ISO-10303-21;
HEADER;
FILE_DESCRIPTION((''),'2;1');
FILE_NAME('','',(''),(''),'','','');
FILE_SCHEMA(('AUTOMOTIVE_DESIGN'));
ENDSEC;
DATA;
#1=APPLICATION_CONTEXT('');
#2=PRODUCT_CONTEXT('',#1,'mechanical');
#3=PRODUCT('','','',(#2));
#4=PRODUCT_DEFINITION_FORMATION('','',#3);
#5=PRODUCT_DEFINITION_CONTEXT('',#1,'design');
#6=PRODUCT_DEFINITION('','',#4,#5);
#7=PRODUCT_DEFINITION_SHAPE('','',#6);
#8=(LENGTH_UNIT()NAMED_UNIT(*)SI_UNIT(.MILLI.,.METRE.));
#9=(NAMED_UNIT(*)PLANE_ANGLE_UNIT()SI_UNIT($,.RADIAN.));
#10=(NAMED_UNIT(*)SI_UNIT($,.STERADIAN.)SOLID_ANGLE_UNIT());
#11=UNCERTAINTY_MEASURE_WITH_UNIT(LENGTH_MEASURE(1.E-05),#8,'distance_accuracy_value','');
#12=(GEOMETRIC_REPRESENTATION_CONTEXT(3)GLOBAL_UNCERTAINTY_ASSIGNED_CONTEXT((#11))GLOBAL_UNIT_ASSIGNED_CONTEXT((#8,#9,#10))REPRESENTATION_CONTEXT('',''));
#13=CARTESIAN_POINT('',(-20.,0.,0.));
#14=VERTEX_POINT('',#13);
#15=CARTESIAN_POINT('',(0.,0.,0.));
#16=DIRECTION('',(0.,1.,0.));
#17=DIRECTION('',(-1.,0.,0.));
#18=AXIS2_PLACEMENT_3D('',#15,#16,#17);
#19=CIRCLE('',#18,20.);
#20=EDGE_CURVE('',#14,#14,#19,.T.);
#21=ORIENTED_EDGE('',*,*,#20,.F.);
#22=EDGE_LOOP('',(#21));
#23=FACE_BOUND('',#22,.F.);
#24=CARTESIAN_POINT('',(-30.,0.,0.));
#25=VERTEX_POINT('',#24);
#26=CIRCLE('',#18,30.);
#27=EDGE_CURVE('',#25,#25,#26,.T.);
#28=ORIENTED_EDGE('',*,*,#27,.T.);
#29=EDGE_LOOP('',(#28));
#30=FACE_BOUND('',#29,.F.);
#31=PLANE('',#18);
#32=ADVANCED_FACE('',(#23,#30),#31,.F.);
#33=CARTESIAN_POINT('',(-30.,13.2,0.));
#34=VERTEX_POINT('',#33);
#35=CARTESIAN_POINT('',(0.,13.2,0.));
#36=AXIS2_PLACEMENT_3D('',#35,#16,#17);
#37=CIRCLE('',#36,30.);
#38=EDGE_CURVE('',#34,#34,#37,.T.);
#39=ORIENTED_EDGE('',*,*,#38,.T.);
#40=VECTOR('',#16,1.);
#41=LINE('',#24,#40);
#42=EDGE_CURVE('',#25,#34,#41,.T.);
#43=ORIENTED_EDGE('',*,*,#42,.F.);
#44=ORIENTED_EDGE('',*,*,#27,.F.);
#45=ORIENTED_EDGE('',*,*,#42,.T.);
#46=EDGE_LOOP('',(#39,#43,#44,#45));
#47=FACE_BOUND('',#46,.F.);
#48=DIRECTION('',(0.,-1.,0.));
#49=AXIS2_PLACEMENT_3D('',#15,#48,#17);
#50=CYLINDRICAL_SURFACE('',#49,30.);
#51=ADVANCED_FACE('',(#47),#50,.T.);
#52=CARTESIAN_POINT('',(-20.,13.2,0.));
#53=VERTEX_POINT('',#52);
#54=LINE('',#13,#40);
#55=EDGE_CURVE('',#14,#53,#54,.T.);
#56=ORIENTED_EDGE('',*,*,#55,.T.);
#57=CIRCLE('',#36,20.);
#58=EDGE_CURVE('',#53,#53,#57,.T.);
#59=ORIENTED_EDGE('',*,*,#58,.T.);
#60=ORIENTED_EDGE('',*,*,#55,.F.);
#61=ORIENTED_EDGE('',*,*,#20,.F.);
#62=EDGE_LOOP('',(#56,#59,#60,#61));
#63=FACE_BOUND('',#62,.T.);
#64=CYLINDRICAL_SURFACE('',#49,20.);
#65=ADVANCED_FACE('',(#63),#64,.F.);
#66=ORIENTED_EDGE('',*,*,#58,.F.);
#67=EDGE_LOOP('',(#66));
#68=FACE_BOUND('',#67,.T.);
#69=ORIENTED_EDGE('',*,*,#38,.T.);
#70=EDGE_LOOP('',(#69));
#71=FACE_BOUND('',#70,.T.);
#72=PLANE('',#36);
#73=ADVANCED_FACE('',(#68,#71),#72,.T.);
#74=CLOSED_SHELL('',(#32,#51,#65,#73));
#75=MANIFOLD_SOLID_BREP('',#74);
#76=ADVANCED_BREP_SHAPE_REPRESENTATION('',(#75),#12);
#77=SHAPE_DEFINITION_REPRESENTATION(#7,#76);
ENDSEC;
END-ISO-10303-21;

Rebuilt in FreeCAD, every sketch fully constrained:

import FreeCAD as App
import Part
import Sketcher
from FreeCAD import Vector

doc = App.newDocument("Part")
body = doc.addObject("PartDesign::Body", "Body")

# Sketch on XZ plane
sketch1 = body.newObject("Sketcher::SketchObject", "Sketch")
sketch1.AttachmentSupport = (doc.getObject("XZ_Plane"), [""])
sketch1.MapMode = "FlatFace"
sketch1.addGeometry([
    Part.Circle(Vector(0, 0, 0), Vector(0, 0, 1), 30),
    Part.Circle(Vector(0, 0, 0), Vector(0, 0, 1), 20),
], False)
sketch1.addConstraint([
    Sketcher.Constraint("Coincident", 0, 3, -1, 1),
    Sketcher.Constraint("Coincident", 1, 3, -1, 1),
    Sketcher.Constraint("Diameter", 0, 60.0),
    Sketcher.Constraint("Diameter", 1, 40.0),
])
pad1 = body.newObject("PartDesign::Pad", "Pad")
pad1.Profile = sketch1
pad1.Length = 13.2
pad1.Reversed = True

doc.recompute()
